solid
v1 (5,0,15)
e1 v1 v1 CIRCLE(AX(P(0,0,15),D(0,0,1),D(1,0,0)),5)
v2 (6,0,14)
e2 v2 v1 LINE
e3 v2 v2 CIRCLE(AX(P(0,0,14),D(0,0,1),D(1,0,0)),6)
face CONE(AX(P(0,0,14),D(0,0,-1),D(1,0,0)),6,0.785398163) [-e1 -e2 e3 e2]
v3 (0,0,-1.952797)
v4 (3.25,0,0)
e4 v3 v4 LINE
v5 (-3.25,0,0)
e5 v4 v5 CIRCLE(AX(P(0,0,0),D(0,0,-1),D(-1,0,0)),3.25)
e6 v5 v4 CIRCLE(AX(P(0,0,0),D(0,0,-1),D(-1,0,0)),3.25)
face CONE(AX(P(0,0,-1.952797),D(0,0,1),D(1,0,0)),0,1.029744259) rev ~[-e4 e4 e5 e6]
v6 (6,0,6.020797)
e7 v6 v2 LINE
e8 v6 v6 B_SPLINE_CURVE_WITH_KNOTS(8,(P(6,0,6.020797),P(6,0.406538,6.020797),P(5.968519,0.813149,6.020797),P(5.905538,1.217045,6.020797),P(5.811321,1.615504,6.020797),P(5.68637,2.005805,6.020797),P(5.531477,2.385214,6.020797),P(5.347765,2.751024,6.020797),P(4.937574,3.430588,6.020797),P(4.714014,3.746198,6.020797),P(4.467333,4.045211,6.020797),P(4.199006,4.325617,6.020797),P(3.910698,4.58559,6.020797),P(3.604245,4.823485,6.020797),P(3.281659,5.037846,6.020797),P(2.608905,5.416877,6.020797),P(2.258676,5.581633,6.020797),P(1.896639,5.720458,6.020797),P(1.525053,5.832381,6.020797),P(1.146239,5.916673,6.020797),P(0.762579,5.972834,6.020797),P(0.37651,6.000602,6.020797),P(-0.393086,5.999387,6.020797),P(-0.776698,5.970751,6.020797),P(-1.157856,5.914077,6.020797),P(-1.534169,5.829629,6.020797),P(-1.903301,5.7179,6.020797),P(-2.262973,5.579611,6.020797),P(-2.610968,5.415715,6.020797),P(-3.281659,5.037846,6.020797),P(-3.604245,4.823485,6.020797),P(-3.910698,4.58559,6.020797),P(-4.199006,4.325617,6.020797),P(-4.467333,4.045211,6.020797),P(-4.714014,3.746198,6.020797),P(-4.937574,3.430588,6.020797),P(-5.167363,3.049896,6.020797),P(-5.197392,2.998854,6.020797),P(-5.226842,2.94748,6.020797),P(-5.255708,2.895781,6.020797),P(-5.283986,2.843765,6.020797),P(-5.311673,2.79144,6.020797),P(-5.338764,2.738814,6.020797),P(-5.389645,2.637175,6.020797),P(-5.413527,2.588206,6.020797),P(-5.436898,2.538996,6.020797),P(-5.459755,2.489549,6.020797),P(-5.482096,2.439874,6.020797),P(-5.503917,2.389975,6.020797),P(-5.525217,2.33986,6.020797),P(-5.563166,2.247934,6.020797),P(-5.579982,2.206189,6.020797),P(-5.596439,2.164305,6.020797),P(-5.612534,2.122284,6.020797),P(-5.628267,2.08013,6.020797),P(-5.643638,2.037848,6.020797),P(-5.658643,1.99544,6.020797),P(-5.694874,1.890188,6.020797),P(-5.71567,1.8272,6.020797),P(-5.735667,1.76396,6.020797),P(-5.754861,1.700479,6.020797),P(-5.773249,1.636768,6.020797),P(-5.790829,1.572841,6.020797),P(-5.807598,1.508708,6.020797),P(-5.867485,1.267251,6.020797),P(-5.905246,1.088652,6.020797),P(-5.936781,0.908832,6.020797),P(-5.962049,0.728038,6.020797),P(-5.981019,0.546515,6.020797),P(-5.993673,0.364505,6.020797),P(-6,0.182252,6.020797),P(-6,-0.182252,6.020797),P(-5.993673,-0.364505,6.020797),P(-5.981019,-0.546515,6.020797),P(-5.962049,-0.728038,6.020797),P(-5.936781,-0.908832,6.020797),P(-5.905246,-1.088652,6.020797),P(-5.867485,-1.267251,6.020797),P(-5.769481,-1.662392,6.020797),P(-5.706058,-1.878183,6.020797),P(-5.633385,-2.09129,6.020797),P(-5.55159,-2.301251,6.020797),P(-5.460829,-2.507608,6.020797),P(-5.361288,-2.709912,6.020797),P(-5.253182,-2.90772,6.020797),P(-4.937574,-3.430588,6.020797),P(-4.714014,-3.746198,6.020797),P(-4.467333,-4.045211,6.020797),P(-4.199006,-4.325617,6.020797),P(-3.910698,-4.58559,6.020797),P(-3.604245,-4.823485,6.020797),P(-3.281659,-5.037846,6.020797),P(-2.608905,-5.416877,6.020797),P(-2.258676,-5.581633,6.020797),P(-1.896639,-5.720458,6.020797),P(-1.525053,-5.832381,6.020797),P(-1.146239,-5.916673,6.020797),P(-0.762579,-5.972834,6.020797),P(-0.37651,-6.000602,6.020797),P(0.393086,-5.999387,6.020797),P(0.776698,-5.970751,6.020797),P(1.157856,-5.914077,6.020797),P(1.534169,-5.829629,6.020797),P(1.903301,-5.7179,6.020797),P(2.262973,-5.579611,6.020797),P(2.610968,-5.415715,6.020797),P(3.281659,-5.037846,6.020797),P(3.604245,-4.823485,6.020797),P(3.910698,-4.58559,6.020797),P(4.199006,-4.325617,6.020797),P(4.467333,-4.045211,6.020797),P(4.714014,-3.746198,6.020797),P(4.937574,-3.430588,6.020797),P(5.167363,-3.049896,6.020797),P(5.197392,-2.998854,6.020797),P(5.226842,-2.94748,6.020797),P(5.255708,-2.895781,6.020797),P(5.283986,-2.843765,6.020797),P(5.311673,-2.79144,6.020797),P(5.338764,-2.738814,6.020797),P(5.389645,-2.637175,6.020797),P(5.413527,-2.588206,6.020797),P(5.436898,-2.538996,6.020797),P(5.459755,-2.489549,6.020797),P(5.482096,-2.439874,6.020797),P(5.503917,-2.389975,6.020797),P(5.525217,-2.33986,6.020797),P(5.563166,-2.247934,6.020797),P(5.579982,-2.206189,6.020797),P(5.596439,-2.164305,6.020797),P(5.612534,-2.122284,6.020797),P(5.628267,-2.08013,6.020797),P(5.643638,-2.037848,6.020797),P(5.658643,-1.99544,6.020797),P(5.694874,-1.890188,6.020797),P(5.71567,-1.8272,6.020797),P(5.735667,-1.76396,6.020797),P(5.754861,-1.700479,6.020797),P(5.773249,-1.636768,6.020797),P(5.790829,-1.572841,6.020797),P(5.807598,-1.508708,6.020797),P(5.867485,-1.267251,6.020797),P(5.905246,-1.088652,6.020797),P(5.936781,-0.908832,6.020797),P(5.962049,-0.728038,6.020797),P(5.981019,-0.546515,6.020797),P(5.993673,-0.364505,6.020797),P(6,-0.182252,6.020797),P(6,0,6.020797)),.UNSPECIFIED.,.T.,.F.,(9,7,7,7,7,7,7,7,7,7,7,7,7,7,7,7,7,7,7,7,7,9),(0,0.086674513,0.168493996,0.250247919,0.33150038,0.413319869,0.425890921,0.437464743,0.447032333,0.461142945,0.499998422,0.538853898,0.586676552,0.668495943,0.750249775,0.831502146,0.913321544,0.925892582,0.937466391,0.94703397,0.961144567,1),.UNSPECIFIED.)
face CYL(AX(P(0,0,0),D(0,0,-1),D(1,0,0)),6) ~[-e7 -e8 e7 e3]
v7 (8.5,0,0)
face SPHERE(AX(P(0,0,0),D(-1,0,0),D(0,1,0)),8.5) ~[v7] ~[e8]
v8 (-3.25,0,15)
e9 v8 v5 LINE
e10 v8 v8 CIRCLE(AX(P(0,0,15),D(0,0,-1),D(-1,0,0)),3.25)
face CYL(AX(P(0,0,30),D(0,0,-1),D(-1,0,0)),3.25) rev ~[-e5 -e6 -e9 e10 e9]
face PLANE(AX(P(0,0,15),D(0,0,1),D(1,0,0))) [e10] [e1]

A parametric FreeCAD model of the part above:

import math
import FreeCAD as App
import Part
import Sketcher
from FreeCAD import Vector


def edges_at(feature, points):
    """Names of the edges that pass closest to the given points."""
    edges = feature.Shape.Edges
    near = lambda p: min(range(len(edges)), key=lambda i: edges[i].distToShape(Part.Vertex(*p))[0])
    return sorted({f"Edge{near(p) + 1}" for p in points})

doc = App.newDocument("Part")
body = doc.addObject("PartDesign::Body", "Body")

# Sketch on XY plane
sketch1 = body.newObject("Sketcher::SketchObject", "Sketch")
sketch1.AttachmentSupport = (doc.getObject("XY_Plane"), [""])
sketch1.MapMode = "FlatFace"
sketch1.addGeometry(Part.Circle(Vector(0, 0, 0), Vector(0, 0, 1), 6), False)
sketch1.addConstraint([
    Sketcher.Constraint("Coincident", 0, 3, -1, 1),
    Sketcher.Constraint("Diameter", 0, 12.0),
])
pad1 = body.newObject("PartDesign::Pad", "Pad")
pad1.Profile = sketch1
pad1.Length = 15

# Sketch on XY plane
sketch2 = body.newObject("Sketcher::SketchObject", "Sketch001")
sketch2.AttachmentSupport = (doc.getObject("XY_Plane"), [""])
sketch2.MapMode = "FlatFace"
sketch2.addGeometry([
    Part.LineSegment(Vector(-8, 0, 0), Vector(8, 0, 0)),
    Part.ArcOfCircle(Part.Circle(Vector(0, 0, 0), Vector(0, 0, 1), 8), math.radians(0), math.radians(180)),
], False)
sketch2.addConstraint([
    Sketcher.Constraint("Coincident", 0, 1, 1, 2),
    Sketcher.Constraint("Coincident", 1, 1, 0, 2),
    Sketcher.Constraint("Horizontal", 0),
    Sketcher.Constraint("Coincident", 1, 3, -1, 1),
    Sketcher.Constraint("PointOnObject", 0, 1, -1),
    Sketcher.Constraint("Radius", 1, 8.5),
])
revolution = body.newObject("PartDesign::Revolution", "Revolution")
revolution.Profile = sketch2
revolution.ReferenceAxis = (sketch2, ["H_Axis"])
revolution.Angle = 360

# Sketch on XY plane
sketch3 = body.newObject("Sketcher::SketchObject", "Sketch002")
sketch3.AttachmentSupport = (doc.getObject("XY_Plane"), [""])
sketch3.MapMode = "FlatFace"
sketch3.AttachmentOffset = App.Placement(Vector(0, 0, 15), App.Rotation())
sketch3.addGeometry(Part.Circle(Vector(0, 0, 0), Vector(0, 0, 1), 3.2), False)
sketch3.addConstraint([
    Sketcher.Constraint("Coincident", 0, 3, -1, 1),
    Sketcher.Constraint("Diameter", 0, 6.5),
])
doc.recompute()
hole = body.newObject("PartDesign::Hole", "Hole")
hole.Profile = sketch3
hole.ThreadType = "None"
hole.Diameter = 6.5
hole.DepthType = "Dimension"
hole.Depth = 15
hole.DrillPoint = "Angled"
hole.DrillPointAngle = 118
doc.recompute()

chamfer = body.newObject("PartDesign::Chamfer", "Chamfer")
chamfer.Base = (hole, edges_at(hole, [(-6, 0, 15)]))
chamfer.Size = 1

doc.recompute()
